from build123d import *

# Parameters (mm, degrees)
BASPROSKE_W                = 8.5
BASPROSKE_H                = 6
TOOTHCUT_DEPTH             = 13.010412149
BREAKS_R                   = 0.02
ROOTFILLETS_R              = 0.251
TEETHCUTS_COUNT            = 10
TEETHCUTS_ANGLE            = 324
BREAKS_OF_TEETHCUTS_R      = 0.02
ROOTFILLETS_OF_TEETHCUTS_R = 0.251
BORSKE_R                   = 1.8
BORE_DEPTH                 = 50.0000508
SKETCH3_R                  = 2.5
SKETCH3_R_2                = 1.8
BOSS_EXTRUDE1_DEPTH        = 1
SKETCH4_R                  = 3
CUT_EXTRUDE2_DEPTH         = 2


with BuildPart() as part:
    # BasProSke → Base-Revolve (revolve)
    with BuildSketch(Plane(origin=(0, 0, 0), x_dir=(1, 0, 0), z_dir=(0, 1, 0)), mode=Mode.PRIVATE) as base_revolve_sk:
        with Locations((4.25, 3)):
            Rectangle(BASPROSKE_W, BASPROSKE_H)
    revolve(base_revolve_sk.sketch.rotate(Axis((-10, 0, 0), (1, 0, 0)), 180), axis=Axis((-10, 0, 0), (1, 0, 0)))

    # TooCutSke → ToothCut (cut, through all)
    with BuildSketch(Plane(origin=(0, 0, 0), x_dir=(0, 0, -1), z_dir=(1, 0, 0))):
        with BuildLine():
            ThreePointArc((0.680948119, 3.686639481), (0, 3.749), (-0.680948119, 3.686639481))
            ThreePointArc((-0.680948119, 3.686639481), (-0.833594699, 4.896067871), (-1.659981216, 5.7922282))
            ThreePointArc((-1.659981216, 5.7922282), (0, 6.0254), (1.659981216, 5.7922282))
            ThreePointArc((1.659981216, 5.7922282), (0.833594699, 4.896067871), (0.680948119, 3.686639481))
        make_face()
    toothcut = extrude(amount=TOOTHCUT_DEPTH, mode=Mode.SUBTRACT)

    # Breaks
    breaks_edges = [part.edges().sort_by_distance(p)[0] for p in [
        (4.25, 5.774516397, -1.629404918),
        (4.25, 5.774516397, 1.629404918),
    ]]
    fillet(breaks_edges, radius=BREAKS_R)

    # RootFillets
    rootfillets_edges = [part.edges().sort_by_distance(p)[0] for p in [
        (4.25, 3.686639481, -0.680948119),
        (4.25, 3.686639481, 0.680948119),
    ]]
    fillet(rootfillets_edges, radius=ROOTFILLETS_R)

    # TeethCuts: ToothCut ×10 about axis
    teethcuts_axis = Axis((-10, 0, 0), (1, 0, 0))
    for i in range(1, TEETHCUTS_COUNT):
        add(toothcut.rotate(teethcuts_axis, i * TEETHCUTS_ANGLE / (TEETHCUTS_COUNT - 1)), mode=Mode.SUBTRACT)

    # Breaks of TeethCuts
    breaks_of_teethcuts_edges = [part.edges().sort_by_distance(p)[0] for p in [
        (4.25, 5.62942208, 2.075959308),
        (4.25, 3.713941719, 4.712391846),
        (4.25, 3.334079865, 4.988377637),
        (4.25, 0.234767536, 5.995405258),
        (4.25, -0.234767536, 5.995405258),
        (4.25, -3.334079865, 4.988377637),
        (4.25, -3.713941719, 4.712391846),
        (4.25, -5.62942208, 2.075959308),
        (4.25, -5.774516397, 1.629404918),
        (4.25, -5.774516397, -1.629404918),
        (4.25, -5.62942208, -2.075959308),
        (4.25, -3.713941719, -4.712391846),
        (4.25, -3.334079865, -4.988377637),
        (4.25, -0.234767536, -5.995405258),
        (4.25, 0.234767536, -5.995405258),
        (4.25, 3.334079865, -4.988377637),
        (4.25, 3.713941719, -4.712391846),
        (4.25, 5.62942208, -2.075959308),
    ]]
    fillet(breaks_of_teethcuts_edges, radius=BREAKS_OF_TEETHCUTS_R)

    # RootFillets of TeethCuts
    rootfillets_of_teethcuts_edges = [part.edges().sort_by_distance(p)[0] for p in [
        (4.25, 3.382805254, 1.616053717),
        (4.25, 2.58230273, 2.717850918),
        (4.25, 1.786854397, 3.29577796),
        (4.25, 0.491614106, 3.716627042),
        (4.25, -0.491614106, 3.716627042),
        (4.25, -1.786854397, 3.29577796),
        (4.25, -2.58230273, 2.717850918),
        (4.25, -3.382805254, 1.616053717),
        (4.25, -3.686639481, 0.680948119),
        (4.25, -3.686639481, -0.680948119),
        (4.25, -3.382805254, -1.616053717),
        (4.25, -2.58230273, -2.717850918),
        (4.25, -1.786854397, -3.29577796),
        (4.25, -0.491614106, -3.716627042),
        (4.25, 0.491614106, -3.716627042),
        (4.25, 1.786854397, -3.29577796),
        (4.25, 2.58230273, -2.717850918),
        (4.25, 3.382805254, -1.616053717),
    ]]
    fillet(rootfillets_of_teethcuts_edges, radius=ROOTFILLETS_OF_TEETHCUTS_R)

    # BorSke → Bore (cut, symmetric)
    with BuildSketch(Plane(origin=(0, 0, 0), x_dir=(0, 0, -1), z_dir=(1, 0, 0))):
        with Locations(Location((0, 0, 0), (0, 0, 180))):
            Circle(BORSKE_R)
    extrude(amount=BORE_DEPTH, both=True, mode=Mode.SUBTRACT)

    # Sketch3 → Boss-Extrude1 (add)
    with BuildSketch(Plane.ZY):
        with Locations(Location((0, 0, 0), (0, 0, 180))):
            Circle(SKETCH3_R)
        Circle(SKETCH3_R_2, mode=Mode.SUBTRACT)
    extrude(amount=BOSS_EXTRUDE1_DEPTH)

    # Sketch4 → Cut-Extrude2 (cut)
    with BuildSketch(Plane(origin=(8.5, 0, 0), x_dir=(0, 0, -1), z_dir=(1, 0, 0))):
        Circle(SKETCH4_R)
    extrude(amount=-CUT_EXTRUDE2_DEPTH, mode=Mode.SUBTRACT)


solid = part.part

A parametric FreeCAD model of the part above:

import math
import FreeCAD as App
import Part
import Sketcher
Q = App.Units.Quantity


def edges_at(feature, points):
    """Names of the edges that pass closest to the given points."""
    edges = feature.Shape.Edges
    near = lambda p: min(range(len(edges)), key=lambda i: edges[i].distToShape(Part.Vertex(*p))[0])
    return sorted({f"Edge{near(p) + 1}" for p in points})

doc = App.newDocument("Part")
body = doc.addObject("PartDesign::Body", "Body")

# Sketch on XZ plane
sketch1 = body.newObject("Sketcher::SketchObject", "Sketch")
sketch1.AttachmentSupport = (doc.getObject("XZ_Plane"), [""])
sketch1.MapMode = "FlatFace"
sketch1.addGeometry([
    Part.LineSegment(App.Vector(0, -6, 0), App.Vector(0, 0, 0)),
    Part.LineSegment(App.Vector(0, 0, 0), App.Vector(8, 0, 0)),
    Part.LineSegment(App.Vector(8, 0, 0), App.Vector(8, -6, 0)),
    Part.LineSegment(App.Vector(8, -6, 0), App.Vector(0, -6, 0)),
], False)
sketch1.addConstraint([
    Sketcher.Constraint("Coincident", 0, 2, 1, 1),
    Sketcher.Constraint("Coincident", 1, 2, 2, 1),
    Sketcher.Constraint("Coincident", 2, 2, 3, 1),
    Sketcher.Constraint("Coincident", 3, 2, 0, 1),
    Sketcher.Constraint("Vertical", 0),
    Sketcher.Constraint("Horizontal", 1),
    Sketcher.Constraint("Vertical", 2),
    Sketcher.Constraint("Horizontal", 3),
    Sketcher.Constraint("Coincident", 0, 2, -1, 1),
    Sketcher.Constraint("DistanceY", 0, 1, 0, 2, Q("6 mm")),
    Sketcher.Constraint("DistanceX", 1, 1, 1, 2, Q("8.5 mm")),
])
revolution = body.newObject("PartDesign::Revolution", "Revolution")
revolution.Profile = sketch1
revolution.ReferenceAxis = (sketch1, ["H_Axis"])
revolution.Angle = 360

# Sketch on YZ plane
sketch2 = body.newObject("Sketcher::SketchObject", "Sketch001")
sketch2.AttachmentSupport = (doc.getObject("YZ_Plane"), [""])
sketch2.MapMode = "FlatFace"
sketch2.addGeometry([
    Part.ArcOfCircle(Part.Circle(App.Vector(0, 0, 0), App.Vector(0, 0, 1), 3.7), math.radians(-10), math.radians(10)),
    Part.ArcOfCircle(Part.Circle(App.Vector(4.1, -2.6, 0), App.Vector(0, 0, 1), 2), math.radians(30), math.radians(101)),
    Part.ArcOfCircle(Part.Circle(App.Vector(0, 0, 0), App.Vector(0, 0, 1), 6), math.radians(-16), math.radians(16)),
    Part.ArcOfCircle(Part.Circle(App.Vector(4.1, 2.6, 0), App.Vector(0, 0, 1), 2), math.radians(-101), math.radians(-30)),
], False)
sketch2.addConstraint([
    Sketcher.Constraint("Coincident", 0, 1, 1, 2),
    Sketcher.Constraint("Coincident", 1, 1, 2, 1),
    Sketcher.Constraint("Coincident", 2, 2, 3, 2),
    Sketcher.Constraint("Coincident", 3, 1, 0, 2),
    Sketcher.Constraint("Coincident", 0, 3, -1, 1),
    Sketcher.Constraint("Coincident", 2, 3, -1, 1),
    Sketcher.Constraint("Equal", 1, 3),
    Sketcher.Constraint("Symmetric", 1, 3, 3, 3, -1),
    Sketcher.Constraint("Radius", 1, Q("2 mm")),
    Sketcher.Constraint("Radius", 0, Q("3.749 mm")),
    Sketcher.Constraint("Radius", 2, Q("6.0254 mm")),
    Sketcher.Constraint("DistanceX", 1, 3, 1, 1, Q("1.739402 mm")),
    Sketcher.Constraint("DistanceY", 1, 3, -1, 1, Q("2.647139 mm")),
])
pocket1 = body.newObject("PartDesign::Pocket", "Pocket")
pocket1.Profile = sketch2
pocket1.Type = "ThroughAll"
pocket1.Reversed = True
doc.recompute()

fillet = body.newObject("PartDesign::Fillet", "Fillet")
fillet.Base = (pocket1, edges_at(pocket1, [(4.25, 5.775, -1.629), (4.25, 5.775, 1.629)]))
fillet.Radius = 0.02
doc.recompute()

fillet2 = body.newObject("PartDesign::Fillet", "Fillet001")
fillet2.Base = (fillet, edges_at(fillet, [(4.25, 3.687, -0.681), (4.25, 3.687, 0.681)]))
fillet2.Radius = 0.251
doc.recompute()

polarpattern = body.newObject("PartDesign::PolarPattern", "PolarPattern")
polarpattern.Originals = [pocket1]
polarpattern.Axis = (doc.getObject("X_Axis"), [""])
polarpattern.Angle = 360
polarpattern.Occurrences = 10
body.Tip = polarpattern
doc.recompute()

fillet3 = body.newObject("PartDesign::Fillet", "Fillet002")
fillet3.Base = (polarpattern, edges_at(polarpattern, [
    (4.25, 5.629, 2.076),
    (4.25, 3.714, 4.712),
    (4.25, 3.334, 4.988),
    (4.25, 0.235, 5.995),
    (4.25, -0.235, 5.995),
    (4.25, -3.334, 4.988),
    (4.25, -3.714, 4.712),
    (4.25, -5.629, 2.076),
    (4.25, -5.775, 1.629),
    (4.25, -5.775, -1.629),
    (4.25, -5.629, -2.076),
    (4.25, -3.714, -4.712),
    (4.25, -3.334, -4.988),
    (4.25, -0.235, -5.995),
    (4.25, 0.235, -5.995),
    (4.25, 3.334, -4.988),
    (4.25, 3.714, -4.712),
    (4.25, 5.629, -2.076),
]))
fillet3.Radius = 0.02
doc.recompute()

fillet4 = body.newObject("PartDesign::Fillet", "Fillet003")
fillet4.Base = (fillet3, edges_at(fillet3, [
    (4.25, 3.383, 1.616),
    (4.25, 2.582, 2.718),
    (4.25, 1.787, 3.296),
    (4.25, 0.492, 3.717),
    (4.25, -0.492, 3.717),
    (4.25, -1.787, 3.296),
    (4.25, -2.582, 2.718),
    (4.25, -3.383, 1.616),
    (4.25, -3.687, 0.681),
    (4.25, -3.687, -0.681),
    (4.25, -3.383, -1.616),
    (4.25, -2.582, -2.718),
    (4.25, -1.787, -3.296),
    (4.25, -0.492, -3.717),
    (4.25, 0.492, -3.717),
    (4.25, 1.787, -3.296),
    (4.25, 2.582, -2.718),
    (4.25, 3.383, -1.616),
]))
fillet4.Radius = 0.251

# Sketch on YZ plane
sketch3 = body.newObject("Sketcher::SketchObject", "Sketch002")
sketch3.AttachmentSupport = (doc.getObject("YZ_Plane"), [""])
sketch3.MapMode = "FlatFace"
sketch3.addGeometry(Part.Circle(App.Vector(0, 0, 0), App.Vector(0, 0, 1), 1.8), False)
sketch3.addConstraint([
    Sketcher.Constraint("Coincident", 0, 3, -1, 1),
    Sketcher.Constraint("Diameter", 0, Q("3.6 mm")),
])
pocket2 = body.newObject("PartDesign::Pocket", "Pocket001")
pocket2.Profile = sketch3
pocket2.Length = 100.000102
pocket2.Midplane = True

# Sketch on YZ plane
sketch4 = body.newObject("Sketcher::SketchObject", "Sketch003")
sketch4.AttachmentSupport = (doc.getObject("YZ_Plane"), [""])
sketch4.MapMode = "FlatFace"
sketch4.addGeometry([
    Part.Circle(App.Vector(0, 0, 0), App.Vector(0, 0, 1), 2.5),
    Part.Circle(App.Vector(0, 0, 0), App.Vector(0, 0, 1), 1.8),
], False)
sketch4.addConstraint([
    Sketcher.Constraint("Coincident", 0, 3, -1, 1),
    Sketcher.Constraint("Coincident", 1, 3, -1, 1),
    Sketcher.Constraint("Diameter", 0, Q("5 mm")),
    Sketcher.Constraint("Diameter", 1, Q("3.6 mm")),
])
pad1 = body.newObject("PartDesign::Pad", "Pad")
pad1.Profile = sketch4
pad1.Length = 1
pad1.Reversed = True

# Sketch on YZ plane
sketch5 = body.newObject("Sketcher::SketchObject", "Sketch004")
sketch5.AttachmentSupport = (doc.getObject("YZ_Plane"), [""])
sketch5.MapMode = "FlatFace"
sketch5.AttachmentOffset = App.Placement(App.Vector(0, 0, 8.5), App.Rotation())
sketch5.addGeometry(Part.Circle(App.Vector(0, 0, 0), App.Vector(0, 0, 1), 3), False)
sketch5.addConstraint([
    Sketcher.Constraint("Coincident", 0, 3, -1, 1),
    Sketcher.Constraint("Diameter", 0, Q("6 mm")),
])
pocket3 = body.newObject("PartDesign::Pocket", "Pocket002")
pocket3.Profile = sketch5
pocket3.Length = 2

doc.recompute()
